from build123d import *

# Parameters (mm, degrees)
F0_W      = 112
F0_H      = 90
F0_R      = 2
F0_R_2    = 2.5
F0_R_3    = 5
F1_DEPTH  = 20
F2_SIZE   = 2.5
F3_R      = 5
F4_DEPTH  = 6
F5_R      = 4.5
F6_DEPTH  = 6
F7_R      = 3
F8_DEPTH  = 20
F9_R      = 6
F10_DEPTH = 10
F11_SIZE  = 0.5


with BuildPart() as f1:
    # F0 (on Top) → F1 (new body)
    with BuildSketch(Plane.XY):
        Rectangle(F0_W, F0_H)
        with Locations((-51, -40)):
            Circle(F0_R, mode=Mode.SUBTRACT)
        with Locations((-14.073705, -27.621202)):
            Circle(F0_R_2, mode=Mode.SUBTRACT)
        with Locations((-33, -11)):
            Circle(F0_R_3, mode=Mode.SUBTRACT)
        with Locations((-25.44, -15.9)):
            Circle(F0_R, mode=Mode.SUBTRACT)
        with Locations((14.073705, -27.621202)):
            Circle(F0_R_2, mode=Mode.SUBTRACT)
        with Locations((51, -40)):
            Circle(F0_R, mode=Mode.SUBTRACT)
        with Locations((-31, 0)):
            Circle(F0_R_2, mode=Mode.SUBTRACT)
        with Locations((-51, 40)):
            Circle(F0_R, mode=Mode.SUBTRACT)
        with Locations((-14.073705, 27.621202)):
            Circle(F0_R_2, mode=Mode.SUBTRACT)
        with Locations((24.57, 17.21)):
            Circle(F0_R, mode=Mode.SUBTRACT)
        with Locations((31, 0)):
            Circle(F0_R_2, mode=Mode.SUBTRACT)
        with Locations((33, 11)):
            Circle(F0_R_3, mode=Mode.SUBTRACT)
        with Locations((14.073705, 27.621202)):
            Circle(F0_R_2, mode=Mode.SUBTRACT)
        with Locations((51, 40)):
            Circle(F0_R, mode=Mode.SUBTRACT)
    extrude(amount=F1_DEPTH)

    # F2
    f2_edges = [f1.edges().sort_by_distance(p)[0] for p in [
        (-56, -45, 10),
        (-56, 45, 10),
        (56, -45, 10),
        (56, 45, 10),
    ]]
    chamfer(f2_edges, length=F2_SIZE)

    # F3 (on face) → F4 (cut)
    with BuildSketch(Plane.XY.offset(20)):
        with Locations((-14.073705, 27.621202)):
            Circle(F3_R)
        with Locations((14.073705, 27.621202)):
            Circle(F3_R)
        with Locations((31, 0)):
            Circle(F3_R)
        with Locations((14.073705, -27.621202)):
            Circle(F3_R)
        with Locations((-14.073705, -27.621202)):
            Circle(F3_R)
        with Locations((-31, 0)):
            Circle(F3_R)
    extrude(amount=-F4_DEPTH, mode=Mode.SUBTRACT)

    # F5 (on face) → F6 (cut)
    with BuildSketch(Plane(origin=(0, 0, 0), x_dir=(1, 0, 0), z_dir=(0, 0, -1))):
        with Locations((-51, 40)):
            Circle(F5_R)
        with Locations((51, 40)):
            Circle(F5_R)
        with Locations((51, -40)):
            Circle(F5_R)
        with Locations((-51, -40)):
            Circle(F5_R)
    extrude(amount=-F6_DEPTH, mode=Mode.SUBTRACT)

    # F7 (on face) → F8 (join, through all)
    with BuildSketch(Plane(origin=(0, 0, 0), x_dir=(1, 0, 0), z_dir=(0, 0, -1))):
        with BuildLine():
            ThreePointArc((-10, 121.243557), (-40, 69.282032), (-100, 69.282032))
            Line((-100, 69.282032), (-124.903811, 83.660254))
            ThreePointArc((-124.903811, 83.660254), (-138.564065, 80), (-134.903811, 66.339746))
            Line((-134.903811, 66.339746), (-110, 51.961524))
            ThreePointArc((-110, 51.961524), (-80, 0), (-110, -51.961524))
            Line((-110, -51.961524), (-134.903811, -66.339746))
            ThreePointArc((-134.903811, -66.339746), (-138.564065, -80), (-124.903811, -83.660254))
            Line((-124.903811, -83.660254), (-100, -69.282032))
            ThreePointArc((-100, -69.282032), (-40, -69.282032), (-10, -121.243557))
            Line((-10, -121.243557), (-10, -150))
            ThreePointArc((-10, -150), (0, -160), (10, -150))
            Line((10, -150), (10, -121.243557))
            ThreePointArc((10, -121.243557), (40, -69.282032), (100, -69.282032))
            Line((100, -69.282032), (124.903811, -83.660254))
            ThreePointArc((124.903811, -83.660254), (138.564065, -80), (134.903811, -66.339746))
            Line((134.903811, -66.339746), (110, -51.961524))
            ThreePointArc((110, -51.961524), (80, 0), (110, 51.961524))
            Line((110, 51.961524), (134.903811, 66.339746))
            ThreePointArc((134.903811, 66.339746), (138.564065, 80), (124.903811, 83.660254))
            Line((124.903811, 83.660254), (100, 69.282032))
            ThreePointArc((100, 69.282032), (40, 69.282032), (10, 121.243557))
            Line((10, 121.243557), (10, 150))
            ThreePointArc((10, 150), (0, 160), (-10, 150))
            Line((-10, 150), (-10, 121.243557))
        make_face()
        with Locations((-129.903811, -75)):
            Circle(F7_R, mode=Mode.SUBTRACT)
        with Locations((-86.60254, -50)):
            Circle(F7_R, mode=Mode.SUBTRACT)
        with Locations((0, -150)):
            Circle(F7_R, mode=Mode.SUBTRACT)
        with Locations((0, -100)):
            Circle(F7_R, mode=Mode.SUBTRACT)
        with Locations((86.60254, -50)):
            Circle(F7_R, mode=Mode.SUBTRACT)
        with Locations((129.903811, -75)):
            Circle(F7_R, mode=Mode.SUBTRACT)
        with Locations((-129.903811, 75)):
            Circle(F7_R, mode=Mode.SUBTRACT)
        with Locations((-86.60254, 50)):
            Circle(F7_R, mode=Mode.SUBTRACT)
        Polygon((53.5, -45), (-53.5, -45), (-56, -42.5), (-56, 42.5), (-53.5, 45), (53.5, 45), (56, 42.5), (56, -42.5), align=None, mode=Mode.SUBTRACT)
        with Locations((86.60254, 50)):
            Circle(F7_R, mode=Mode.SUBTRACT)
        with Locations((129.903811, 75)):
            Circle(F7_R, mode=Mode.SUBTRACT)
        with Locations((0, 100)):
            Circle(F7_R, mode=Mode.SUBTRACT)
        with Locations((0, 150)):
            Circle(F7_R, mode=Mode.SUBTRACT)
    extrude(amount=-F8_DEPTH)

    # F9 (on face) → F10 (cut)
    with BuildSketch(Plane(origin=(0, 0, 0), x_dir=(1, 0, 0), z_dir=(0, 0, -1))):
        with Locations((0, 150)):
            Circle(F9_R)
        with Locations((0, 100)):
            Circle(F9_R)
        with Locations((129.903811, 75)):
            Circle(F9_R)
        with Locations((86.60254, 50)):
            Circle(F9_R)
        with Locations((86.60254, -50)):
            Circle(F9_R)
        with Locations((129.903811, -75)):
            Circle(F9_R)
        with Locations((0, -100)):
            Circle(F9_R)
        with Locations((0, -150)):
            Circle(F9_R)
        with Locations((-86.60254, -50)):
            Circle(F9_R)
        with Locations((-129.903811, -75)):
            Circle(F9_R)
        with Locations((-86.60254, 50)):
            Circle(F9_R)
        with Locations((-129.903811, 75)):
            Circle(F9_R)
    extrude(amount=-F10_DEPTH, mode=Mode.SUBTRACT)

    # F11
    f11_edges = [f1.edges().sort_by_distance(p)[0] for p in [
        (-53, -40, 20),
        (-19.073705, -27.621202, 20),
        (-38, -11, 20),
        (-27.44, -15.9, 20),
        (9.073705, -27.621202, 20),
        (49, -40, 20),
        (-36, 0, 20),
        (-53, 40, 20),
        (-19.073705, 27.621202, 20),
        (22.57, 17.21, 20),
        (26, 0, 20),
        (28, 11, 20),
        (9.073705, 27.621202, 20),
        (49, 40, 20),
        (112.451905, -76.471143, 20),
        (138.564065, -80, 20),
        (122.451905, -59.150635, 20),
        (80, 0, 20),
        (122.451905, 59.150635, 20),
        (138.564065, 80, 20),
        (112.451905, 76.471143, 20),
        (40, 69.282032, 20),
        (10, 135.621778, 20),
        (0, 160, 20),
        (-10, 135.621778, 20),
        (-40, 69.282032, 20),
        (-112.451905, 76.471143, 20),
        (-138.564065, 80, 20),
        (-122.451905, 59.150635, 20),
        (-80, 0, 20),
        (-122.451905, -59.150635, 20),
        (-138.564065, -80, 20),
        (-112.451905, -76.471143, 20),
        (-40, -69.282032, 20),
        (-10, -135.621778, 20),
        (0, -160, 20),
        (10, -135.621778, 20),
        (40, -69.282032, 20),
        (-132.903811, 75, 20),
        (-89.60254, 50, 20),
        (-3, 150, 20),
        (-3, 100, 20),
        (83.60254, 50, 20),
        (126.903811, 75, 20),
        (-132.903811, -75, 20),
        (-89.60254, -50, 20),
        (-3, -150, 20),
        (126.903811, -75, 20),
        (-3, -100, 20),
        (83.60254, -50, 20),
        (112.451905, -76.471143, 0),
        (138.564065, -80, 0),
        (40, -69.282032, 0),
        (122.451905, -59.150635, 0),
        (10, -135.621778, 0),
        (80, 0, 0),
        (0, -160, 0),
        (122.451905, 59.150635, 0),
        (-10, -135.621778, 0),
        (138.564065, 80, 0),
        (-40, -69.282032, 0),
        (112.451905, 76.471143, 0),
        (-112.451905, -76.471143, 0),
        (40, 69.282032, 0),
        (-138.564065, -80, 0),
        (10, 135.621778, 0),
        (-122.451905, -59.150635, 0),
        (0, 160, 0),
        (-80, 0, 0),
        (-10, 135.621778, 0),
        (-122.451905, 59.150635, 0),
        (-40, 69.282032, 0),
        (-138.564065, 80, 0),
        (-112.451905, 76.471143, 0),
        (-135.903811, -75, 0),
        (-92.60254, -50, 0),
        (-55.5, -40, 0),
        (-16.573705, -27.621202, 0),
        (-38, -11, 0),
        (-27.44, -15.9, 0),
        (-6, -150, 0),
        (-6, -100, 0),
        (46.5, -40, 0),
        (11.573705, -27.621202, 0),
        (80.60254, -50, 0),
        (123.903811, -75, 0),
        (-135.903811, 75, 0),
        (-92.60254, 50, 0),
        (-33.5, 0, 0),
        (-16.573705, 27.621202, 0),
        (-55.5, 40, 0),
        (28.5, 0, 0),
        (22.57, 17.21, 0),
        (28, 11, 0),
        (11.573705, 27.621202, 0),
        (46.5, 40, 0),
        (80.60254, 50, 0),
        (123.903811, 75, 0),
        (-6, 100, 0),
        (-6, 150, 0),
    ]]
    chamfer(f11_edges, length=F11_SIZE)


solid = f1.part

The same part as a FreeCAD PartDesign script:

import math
import FreeCAD as App
import Part
import Sketcher
Q = App.Units.Quantity


def edges_at(feature, points):
    """Names of the edges that pass closest to the given points."""
    edges = feature.Shape.Edges
    near = lambda p: min(range(len(edges)), key=lambda i: edges[i].distToShape(Part.Vertex(*p))[0])
    return sorted({f"Edge{near(p) + 1}" for p in points})

doc = App.newDocument("Part")
body = doc.addObject("PartDesign::Body", "Body")

# Sketch on XY plane
sketch1 = body.newObject("Sketcher::SketchObject", "Sketch")
sketch1.AttachmentSupport = (doc.getObject("XY_Plane"), [""])
sketch1.MapMode = "FlatFace"
sketch1.addGeometry([
    Part.LineSegment(App.Vector(-56, 45, 0), App.Vector(-56, -45, 0)),  # 0
    Part.LineSegment(App.Vector(-56, -45, 0), App.Vector(56, -45, 0)),  # 1
    Part.LineSegment(App.Vector(56, -45, 0), App.Vector(56, 45, 0)),  # 2
    Part.LineSegment(App.Vector(56, 45, 0), App.Vector(-56, 45, 0)),  # 3
    Part.Circle(App.Vector(-51, -40, 0), App.Vector(0, 0, 1), 2),  # 4
    Part.Circle(App.Vector(-14.1, -27.6, 0), App.Vector(0, 0, 1), 2.5),  # 5
    Part.Circle(App.Vector(-33, -11, 0), App.Vector(0, 0, 1), 5),  # 6
    Part.Circle(App.Vector(-25.4, -15.9, 0), App.Vector(0, 0, 1), 2),  # 7
    Part.Circle(App.Vector(14.1, -27.6, 0), App.Vector(0, 0, 1), 2.5),  # 8
    Part.Circle(App.Vector(51, -40, 0), App.Vector(0, 0, 1), 2),  # 9
    Part.Circle(App.Vector(-31, 0, 0), App.Vector(0, 0, 1), 2.5),  # 10
    Part.Circle(App.Vector(-51, 40, 0), App.Vector(0, 0, 1), 2),  # 11
    Part.Circle(App.Vector(-14.1, 27.6, 0), App.Vector(0, 0, 1), 2.5),  # 12
    Part.Circle(App.Vector(24.6, 17.2, 0), App.Vector(0, 0, 1), 2),  # 13
    Part.Circle(App.Vector(31, 0, 0), App.Vector(0, 0, 1), 2.5),  # 14
    Part.Circle(App.Vector(33, 11, 0), App.Vector(0, 0, 1), 5),  # 15
    Part.Circle(App.Vector(14.1, 27.6, 0), App.Vector(0, 0, 1), 2.5),  # 16
    Part.Circle(App.Vector(51, 40, 0), App.Vector(0, 0, 1), 2),  # 17
], False)
sketch1.addConstraint([
    Sketcher.Constraint("Coincident", 0, 2, 1, 1),
    Sketcher.Constraint("Coincident", 1, 2, 2, 1),
    Sketcher.Constraint("Coincident", 2, 2, 3, 1),
    Sketcher.Constraint("Coincident", 3, 2, 0, 1),
    Sketcher.Constraint("Vertical", 0),
    Sketcher.Constraint("Horizontal", 1),
    Sketcher.Constraint("Vertical", 2),
    Sketcher.Constraint("Horizontal", 3),
    Sketcher.Constraint("Equal", 4, 7),
    Sketcher.Constraint("Equal", 5, 8),
    Sketcher.Constraint("Equal", 7, 9),
    Sketcher.Constraint("Equal", 8, 10),
    Sketcher.Constraint("Equal", 9, 11),
    Sketcher.Constraint("Equal", 10, 12),
    Sketcher.Constraint("Equal", 11, 13),
    Sketcher.Constraint("Equal", 12, 14),
    Sketcher.Constraint("Equal", 6, 15),
    Sketcher.Constraint("Equal", 14, 16),
    Sketcher.Constraint("Equal", 13, 17),
    Sketcher.Constraint("Symmetric", 9, 3, 11, 3, -1, 1),
    Sketcher.Constraint("Symmetric", 8, 3, 12, 3, -1, 1),
    Sketcher.Constraint("Symmetric", 10, 3, 14, 3, -1, 1),
    Sketcher.Constraint("Symmetric", 6, 3, 15, 3, -1, 1),
    Sketcher.Constraint("Symmetric", 5, 3, 16, 3, -1, 1),
    Sketcher.Constraint("Symmetric", 4, 3, 17, 3, -1, 1),
    Sketcher.Constraint("Symmetric", 0, 2, 2, 2, -1, 1),
    Sketcher.Constraint("Symmetric", 5, 3, 8, 3, -2),
    Sketcher.Constraint("Symmetric", 4, 3, 9, 3, -2),
    Sketcher.Constraint("PointOnObject", 10, 3, -1),
    Sketcher.Constraint("Diameter", 4, Q("4 mm")),
    Sketcher.Constraint("Diameter", 5, Q("5 mm")),
    Sketcher.Constraint("Diameter", 6, Q("10 mm")),
    Sketcher.Constraint("DistanceX", 1, 1, 1, 2, Q("112 mm")),
    Sketcher.Constraint("DistanceY", 0, 2, 0, 1, Q("90 mm")),
    Sketcher.Constraint("DistanceX", 4, 3, -1, 1, Q("51 mm")),
    Sketcher.Constraint("DistanceY", 4, 3, -1, 1, Q("40 mm")),
    Sketcher.Constraint("DistanceX", 6, 3, -1, 1, Q("33 mm")),
    Sketcher.Constraint("DistanceY", 6, 3, -1, 1, Q("11 mm")),
    Sketcher.Constraint("DistanceX", 10, 3, -1, 1, Q("31 mm")),
    Sketcher.Constraint("DistanceY", 7, 3, -1, 1, Q("15.9 mm")),
    Sketcher.Constraint("DistanceX", 7, 3, -1, 1, Q("25.44 mm")),
    Sketcher.Constraint("DistanceX", -1, 1, 13, 3, Q("24.57 mm")),
    Sketcher.Constraint("DistanceY", -1, 1, 13, 3, Q("17.21 mm")),
    Sketcher.Constraint("DistanceY", 5, 3, -1, 1, Q("27.621202 mm")),
    Sketcher.Constraint("DistanceX", 5, 3, 8, 3, Q("28.14741 mm")),
])
pad1 = body.newObject("PartDesign::Pad", "Pad")
pad1.Profile = sketch1
pad1.Length = 20
doc.recompute()

chamfer = body.newObject("PartDesign::Chamfer", "Chamfer")
chamfer.Base = (pad1, edges_at(pad1, [
    (-56, -45, 10),
    (-56, 45, 10),
    (56, -45, 10),
    (56, 45, 10),
]))
chamfer.Size = 2.5

# Sketch on XY plane
sketch2 = body.newObject("Sketcher::SketchObject", "Sketch001")
sketch2.AttachmentSupport = (doc.getObject("XY_Plane"), [""])
sketch2.MapMode = "FlatFace"
sketch2.AttachmentOffset = App.Placement(App.Vector(0, 0, 20), App.Rotation())
sketch2.addGeometry([
    Part.Circle(App.Vector(-14, 28, 0), App.Vector(0, 0, 1), 5),  # 0
    Part.Circle(App.Vector(14, 28, 0), App.Vector(0, 0, 1), 5),  # 1
    Part.Circle(App.Vector(31, 0, 0), App.Vector(0, 0, 1), 5),  # 2
    Part.Circle(App.Vector(14, -28, 0), App.Vector(0, 0, 1), 5),  # 3
    Part.Circle(App.Vector(-14, -28, 0), App.Vector(0, 0, 1), 5),  # 4
    Part.Circle(App.Vector(-31, 0, 0), App.Vector(0, 0, 1), 5),  # 5
], False)
sketch2.addConstraint([
    Sketcher.Constraint("Equal", 0, 1),
    Sketcher.Constraint("Equal", 1, 2),
    Sketcher.Constraint("Equal", 2, 3),
    Sketcher.Constraint("Equal", 3, 4),
    Sketcher.Constraint("Equal", 4, 5),
    Sketcher.Constraint("Symmetric", 0, 3, 3, 3, -1, 1),
    Sketcher.Constraint("Symmetric", 1, 3, 4, 3, -1, 1),
    Sketcher.Constraint("Symmetric", 2, 3, 5, 3, -1, 1),
    Sketcher.Constraint("Symmetric", 0, 3, 1, 3, -2),
    Sketcher.Constraint("PointOnObject", 2, 3, -1),
    Sketcher.Constraint("Diameter", 0, Q("10 mm")),
    Sketcher.Constraint("DistanceX", -1, 1, 2, 3, Q("31 mm")),
    Sketcher.Constraint("DistanceY", -1, 1, 0, 3, Q("27.621202 mm")),
    Sketcher.Constraint("DistanceX", 0, 3, 1, 3, Q("28.14741 mm")),
])
pocket1 = body.newObject("PartDesign::Pocket", "Pocket")
pocket1.Profile = sketch2
pocket1.Length = 6

# Sketch on XY plane
sketch3 = body.newObject("Sketcher::SketchObject", "Sketch002")
sketch3.AttachmentSupport = (doc.getObject("XY_Plane"), [""])
sketch3.MapMode = "FlatFace"
sketch3.addGeometry([
    Part.Circle(App.Vector(-51, -40, 0), App.Vector(0, 0, 1), 4.5),
    Part.Circle(App.Vector(51, -40, 0), App.Vector(0, 0, 1), 4.5),
    Part.Circle(App.Vector(51, 40, 0), App.Vector(0, 0, 1), 4.5),
    Part.Circle(App.Vector(-51, 40, 0), App.Vector(0, 0, 1), 4.5),
], False)
sketch3.addConstraint([
    Sketcher.Constraint("Equal", 0, 1),
    Sketcher.Constraint("Equal", 1, 2),
    Sketcher.Constraint("Equal", 2, 3),
    Sketcher.Constraint("Symmetric", 0, 3, 2, 3, -1, 1),
    Sketcher.Constraint("Symmetric", 1, 3, 3, 3, -1, 1),
    Sketcher.Constraint("Symmetric", 0, 3, 1, 3, -2),
    Sketcher.Constraint("Diameter", 0, Q("9 mm")),
    Sketcher.Constraint("DistanceX", 0, 3, -1, 1, Q("51 mm")),
    Sketcher.Constraint("DistanceY", 0, 3, -1, 1, Q("40 mm")),
])
pocket2 = body.newObject("PartDesign::Pocket", "Pocket001")
pocket2.Profile = sketch3
pocket2.Length = 6
pocket2.Reversed = True

# Sketch on XY plane
sketch4 = body.newObject("Sketcher::SketchObject", "Sketch003")
sketch4.AttachmentSupport = (doc.getObject("XY_Plane"), [""])
sketch4.MapMode = "FlatFace"
sketch4.addGeometry([
    Part.ArcOfCircle(Part.Circle(App.Vector(-70, -121.2, 0), App.Vector(0, 0, 1), 60), math.radians(0), math.radians(120)),  # 0
    Part.LineSegment(App.Vector(-100, -69.3, 0), App.Vector(-124.9, -83.7, 0)),  # 1
    Part.ArcOfCircle(Part.Circle(App.Vector(-129.9, -75, 0), App.Vector(0, 0, 1), 10), math.radians(120), math.radians(300)),  # 2
    Part.LineSegment(App.Vector(-134.9, -66.3, 0), App.Vector(-110, -52, 0)),  # 3
    Part.ArcOfCircle(Part.Circle(App.Vector(-140, 0, 0), App.Vector(0, 0, 1), 60), math.radians(-60), math.radians(60)),  # 4
    Part.LineSegment(App.Vector(-110, 52, 0), App.Vector(-134.9, 66.3, 0)),  # 5
    Part.ArcOfCircle(Part.Circle(App.Vector(-129.9, 75, 0), App.Vector(0, 0, 1), 10), math.radians(60), math.radians(240)),  # 6
    Part.LineSegment(App.Vector(-124.9, 83.7, 0), App.Vector(-100, 69.3, 0)),  # 7
    Part.ArcOfCircle(Part.Circle(App.Vector(-70, 121.2, 0), App.Vector(0, 0, 1), 60), math.radians(-120), math.radians(0)),  # 8
    Part.LineSegment(App.Vector(-10, 121.2, 0), App.Vector(-10, 150, 0)),  # 9
    Part.ArcOfCircle(Part.Circle(App.Vector(0, 150, 0), App.Vector(0, 0, 1), 10), math.radians(0), math.radians(180)),  # 10
    Part.LineSegment(App.Vector(10, 150, 0), App.Vector(10, 121.2, 0)),  # 11
    Part.ArcOfCircle(Part.Circle(App.Vector(70, 121.2, 0), App.Vector(0, 0, 1), 60), math.radians(180), math.radians(300)),  # 12
    Part.LineSegment(App.Vector(100, 69.3, 0), App.Vector(124.9, 83.7, 0)),  # 13
    Part.ArcOfCircle(Part.Circle(App.Vector(129.9, 75, 0), App.Vector(0, 0, 1), 10), math.radians(-60), math.radians(120)),  # 14
    Part.LineSegment(App.Vector(134.9, 66.3, 0), App.Vector(110, 52, 0)),  # 15
    Part.ArcOfCircle(Part.Circle(App.Vector(140, 0, 0), App.Vector(0, 0, 1), 60), math.radians(120), math.radians(240)),  # 16
    Part.LineSegment(App.Vector(110, -52, 0), App.Vector(134.9, -66.3, 0)),  # 17
    Part.ArcOfCircle(Part.Circle(App.Vector(129.9, -75, 0), App.Vector(0, 0, 1), 10), math.radians(-120), math.radians(60)),  # 18
    Part.LineSegment(App.Vector(124.9, -83.7, 0), App.Vector(100, -69.3, 0)),  # 19
    Part.ArcOfCircle(Part.Circle(App.Vector(70, -121.2, 0), App.Vector(0, 0, 1), 60), math.radians(60), math.radians(180)),  # 20
    Part.LineSegment(App.Vector(10, -121.2, 0), App.Vector(10, -150, 0)),  # 21
    Part.ArcOfCircle(Part.Circle(App.Vector(0, -150, 0), App.Vector(0, 0, 1), 10), math.radians(180), math.radians(360)),  # 22
    Part.LineSegment(App.Vector(-10, -150, 0), App.Vector(-10, -121.2, 0)),  # 23
    Part.Circle(App.Vector(-129.9, 75, 0), App.Vector(0, 0, 1), 3),  # 24
    Part.Circle(App.Vector(-86.6, 50, 0), App.Vector(0, 0, 1), 3),  # 25
    Part.Circle(App.Vector(0, 150, 0), App.Vector(0, 0, 1), 3),  # 26
    Part.Circle(App.Vector(0, 100, 0), App.Vector(0, 0, 1), 3),  # 27
    Part.Circle(App.Vector(86.6, 50, 0), App.Vector(0, 0, 1), 3),  # 28
    Part.Circle(App.Vector(129.9, 75, 0), App.Vector(0, 0, 1), 3),  # 29
    Part.Circle(App.Vector(-129.9, -75, 0), App.Vector(0, 0, 1), 3),  # 30
    Part.Circle(App.Vector(-86.6, -50, 0), App.Vector(0, 0, 1), 3),  # 31
    Part.LineSegment(App.Vector(56, 42.5, 0), App.Vector(53.5, 45, 0)),  # 32
    Part.LineSegment(App.Vector(53.5, 45, 0), App.Vector(-53.5, 45, 0)),  # 33
    Part.LineSegment(App.Vector(-53.5, 45, 0), App.Vector(-56, 42.5, 0)),  # 34
    Part.LineSegment(App.Vector(-56, 42.5, 0), App.Vector(-56, -42.5, 0)),  # 35
    Part.LineSegment(App.Vector(-56, -42.5, 0), App.Vector(-53.5, -45, 0)),  # 36
    Part.LineSegment(App.Vector(-53.5, -45, 0), App.Vector(53.5, -45, 0)),  # 37
    Part.LineSegment(App.Vector(53.5, -45, 0), App.Vector(56, -42.5, 0)),  # 38
    Part.LineSegment(App.Vector(56, -42.5, 0), App.Vector(56, 42.5, 0)),  # 39
    Part.Circle(App.Vector(86.6, -50, 0), App.Vector(0, 0, 1), 3),  # 40
    Part.Circle(App.Vector(129.9, -75, 0), App.Vector(0, 0, 1), 3),  # 41
    Part.Circle(App.Vector(0, -100, 0), App.Vector(0, 0, 1), 3),  # 42
    Part.Circle(App.Vector(0, -150, 0), App.Vector(0, 0, 1), 3),  # 43
], False)
sketch4.addConstraint([
    Sketcher.Constraint("Tangent", 0, 2, 1, 1),
    Sketcher.Constraint("Tangent", 1, 2, 2, 2),
    Sketcher.Constraint("Tangent", 2, 1, 3, 1),
    Sketcher.Constraint("Tangent", 3, 2, 4, 1),
    Sketcher.Constraint("Tangent", 4, 2, 5, 1),
    Sketcher.Constraint("Tangent", 5, 2, 6, 2),
    Sketcher.Constraint("Tangent", 6, 1, 7, 1),
    Sketcher.Constraint("Tangent", 7, 2, 8, 1),
    Sketcher.Constraint("Tangent", 8, 2, 9, 1),
    Sketcher.Constraint("Tangent", 9, 2, 10, 2),
    Sketcher.Constraint("Tangent", 10, 1, 11, 1),
    Sketcher.Constraint("Tangent", 11, 2, 12, 1),
    Sketcher.Constraint("Tangent", 12, 2, 13, 1),
    Sketcher.Constraint("Tangent", 13, 2, 14, 2),
    Sketcher.Constraint("Tangent", 14, 1, 15, 1),
    Sketcher.Constraint("Tangent", 15, 2, 16, 1),
    Sketcher.Constraint("Tangent", 16, 2, 17, 1),
    Sketcher.Constraint("Tangent", 17, 2, 18, 2),
    Sketcher.Constraint("Tangent", 18, 1, 19, 1),
    Sketcher.Constraint("Tangent", 19, 2, 20, 1),
    Sketcher.Constraint("Tangent", 20, 2, 21, 1),
    Sketcher.Constraint("Tangent", 21, 2, 22, 2),
    Sketcher.Constraint("Tangent", 22, 1, 23, 1),
    Sketcher.Constraint("Tangent", 23, 2, 0, 1),
    Sketcher.Constraint("Coincident", 32, 2, 33, 1),
    Sketcher.Constraint("Coincident", 33, 2, 34, 1),
    Sketcher.Constraint("Coincident", 34, 2, 35, 1),
    Sketcher.Constraint("Coincident", 35, 2, 36, 1),
    Sketcher.Constraint("Coincident", 36, 2, 37, 1),
    Sketcher.Constraint("Coincident", 37, 2, 38, 1),
    Sketcher.Constraint("Coincident", 38, 2, 39, 1),
    Sketcher.Constraint("Coincident", 39, 2, 32, 1),
    Sketcher.Constraint("Vertical", 9),
    Sketcher.Constraint("Vertical", 11),
    Sketcher.Constraint("Vertical", 21),
    Sketcher.Constraint("Vertical", 23),
    Sketcher.Constraint("Horizontal", 33),
    Sketcher.Constraint("Vertical", 35),
    Sketcher.Constraint("Horizontal", 37),
    Sketcher.Constraint("Vertical", 39),
    Sketcher.Constraint("Coincident", 24, 3, 6, 3),
    Sketcher.Constraint("Coincident", 26, 3, 10, 3),
    Sketcher.Constraint("Coincident", 29, 3, 14, 3),
    Sketcher.Constraint("Coincident", 30, 3, 2, 3),
    Sketcher.Constraint("Coincident", 41, 3, 18, 3),
    Sketcher.Constraint("Coincident", 43, 3, 22, 3),
    Sketcher.Constraint("Equal", 0, 4),
    Sketcher.Constraint("Equal", 2, 6),
    Sketcher.Constraint("Equal", 4, 8),
    Sketcher.Constraint("Equal", 6, 10),
    Sketcher.Constraint("Equal", 8, 12),
    Sketcher.Constraint("Equal", 10, 14),
    Sketcher.Constraint("Equal", 12, 16),
    Sketcher.Constraint("Equal", 14, 18),
    Sketcher.Constraint("Equal", 16, 20),
    Sketcher.Constraint("Equal", 18, 22),
    Sketcher.Constraint("Equal", 24, 25),
    Sketcher.Constraint("Equal", 25, 26),
    Sketcher.Constraint("Equal", 26, 27),
    Sketcher.Constraint("Equal", 27, 28),
    Sketcher.Constraint("Equal", 28, 29),
    Sketcher.Constraint("Equal", 29, 30),
    Sketcher.Constraint("Equal", 30, 31),
    Sketcher.Constraint("Equal", 31, 40),
    Sketcher.Constraint("Equal", 40, 41),
    Sketcher.Constraint("Equal", 41, 42),
    Sketcher.Constraint("Equal", 42, 43),
    Sketcher.Constraint("Symmetric", 0, 3, 12, 3, -1, 1),
    Sketcher.Constraint("Symmetric", 2, 3, 14, 3, -1, 1),
    Sketcher.Constraint("Symmetric", 4, 3, 16, 3, -1, 1),
    Sketcher.Constraint("Symmetric", 6, 3, 18, 3, -1, 1),
    Sketcher.Constraint("Symmetric", 28, 3, 31, 3, -1, 1),
    Sketcher.Constraint("Symmetric", 25, 3, 40, 3, -1, 1),
    Sketcher.Constraint("Symmetric", 27, 3, 42, 3, -1, 1),
    Sketcher.Constraint("Symmetric", 32, 2, 36, 2, -1, 1),
    Sketcher.Constraint("Symmetric", 34, 2, 38, 2, -1, 1),
    Sketcher.Constraint("Symmetric", 8, 3, 12, 3, -2),
    Sketcher.Constraint("Symmetric", 6, 3, 14, 3, -2),
    Sketcher.Constraint("Symmetric", 25, 3, 28, 3, -2),
    Sketcher.Constraint("PointOnObject", 4, 3, -1),
    Sketcher.Constraint("PointOnObject", 27, 3, -2),
    Sketcher.Constraint("Parallel", 1, 3),
    Sketcher.Constraint("Parallel", 17, 19),
    Sketcher.Constraint("Perpendicular", 32, 34),
    Sketcher.Constraint("Perpendicular", 34, 36),
    Sketcher.Constraint("Perpendicular", 36, 38),
    Sketcher.Constraint("Horizontal", 35, 2, 38, 2),
    Sketcher.Constraint("Vertical", 33, 2, 36, 2),
    Sketcher.Constraint("Equal", 11, 21),
    Sketcher.Constraint("Equal", 1, 3),
    Sketcher.Constraint("Diameter", 24, Q("6 mm")),
    Sketcher.Constraint("Radius", 0, Q("60 mm")),
    Sketcher.Constraint("Radius", 2, Q("10 mm")),
    Sketcher.Constraint("DistanceX", 33, 2, 33, 1, Q("107 mm")),
    Sketcher.Constraint("DistanceY", 35, 2, 35, 1, Q("85 mm")),
    Sketcher.Constraint("Angle", 1, Q("-150 deg")),
    Sketcher.Constraint("DistanceY", 2, 3, -1, 1, Q("75 mm")),
    Sketcher.Constraint("DistanceY", -1, 1, 10, 3, Q("150 mm")),
    Sketcher.Constraint("DistanceY", -1, 1, 25, 3, Q("50 mm")),
    Sketcher.Constraint("DistanceY", -1, 1, 27, 3, Q("100 mm")),
    Sketcher.Constraint("DistanceY", -1, 1, 32, 2, Q("45 mm")),
    Sketcher.Constraint("DistanceX", 25, 3, -1, 1, Q("86.60254 mm")),
])
pad2 = body.newObject("PartDesign::Pad", "Pad001")
pad2.Profile = sketch4
pad2.Type = "UpToLast"

# Sketch on XY plane
sketch5 = body.newObject("Sketcher::SketchObject", "Sketch004")
sketch5.AttachmentSupport = (doc.getObject("XY_Plane"), [""])
sketch5.MapMode = "FlatFace"
sketch5.addGeometry([
    Part.Circle(App.Vector(0, -150, 0), App.Vector(0, 0, 1), 6),  # 0
    Part.Circle(App.Vector(0, -100, 0), App.Vector(0, 0, 1), 6),  # 1
    Part.Circle(App.Vector(130, -75, 0), App.Vector(0, 0, 1), 6),  # 2
    Part.Circle(App.Vector(87, -50, 0), App.Vector(0, 0, 1), 6),  # 3
    Part.Circle(App.Vector(87, 50, 0), App.Vector(0, 0, 1), 6),  # 4
    Part.Circle(App.Vector(130, 75, 0), App.Vector(0, 0, 1), 6),  # 5
    Part.Circle(App.Vector(0, 100, 0), App.Vector(0, 0, 1), 6),  # 6
    Part.Circle(App.Vector(0, 150, 0), App.Vector(0, 0, 1), 6),  # 7
    Part.Circle(App.Vector(-87, 50, 0), App.Vector(0, 0, 1), 6),  # 8
    Part.Circle(App.Vector(-130, 75, 0), App.Vector(0, 0, 1), 6),  # 9
    Part.Circle(App.Vector(-87, -50, 0), App.Vector(0, 0, 1), 6),  # 10
    Part.Circle(App.Vector(-130, -75, 0), App.Vector(0, 0, 1), 6),  # 11
], False)
sketch5.addConstraint([
    Sketcher.Constraint("Equal", 0, 1),
    Sketcher.Constraint("Equal", 1, 2),
    Sketcher.Constraint("Equal", 2, 3),
    Sketcher.Constraint("Equal", 3, 4),
    Sketcher.Constraint("Equal", 4, 5),
    Sketcher.Constraint("Equal", 5, 6),
    Sketcher.Constraint("Equal", 6, 7),
    Sketcher.Constraint("Equal", 7, 8),
    Sketcher.Constraint("Equal", 8, 9),
    Sketcher.Constraint("Equal", 9, 10),
    Sketcher.Constraint("Equal", 10, 11),
    Sketcher.Constraint("Symmetric", 1, 3, 6, 3, -1, 1),
    Sketcher.Constraint("Symmetric", 0, 3, 7, 3, -1, 1),
    Sketcher.Constraint("Symmetric", 3, 3, 8, 3, -1, 1),
    Sketcher.Constraint("Symmetric", 2, 3, 9, 3, -1, 1),
    Sketcher.Constraint("Symmetric", 4, 3, 10, 3, -1, 1),
    Sketcher.Constraint("Symmetric", 5, 3, 11, 3, -1, 1),
    Sketcher.Constraint("Symmetric", 4, 3, 8, 3, -2),
    Sketcher.Constraint("Symmetric", 5, 3, 9, 3, -2),
    Sketcher.Constraint("PointOnObject", 0, 3, -2),
    Sketcher.Constraint("PointOnObject", 1, 3, -2),
    Sketcher.Constraint("Diameter", 0, Q("12 mm")),
    Sketcher.Constraint("DistanceY", 0, 3, -1, 1, Q("150 mm")),
    Sketcher.Constraint("DistanceY", 1, 3, -1, 1, Q("100 mm")),
    Sketcher.Constraint("DistanceY", 2, 3, -1, 1, Q("75 mm")),
    Sketcher.Constraint("DistanceY", 3, 3, -1, 1, Q("50 mm")),
    Sketcher.Constraint("DistanceX", -1, 1, 2, 3, Q("129.903811 mm")),
    Sketcher.Constraint("DistanceX", -1, 1, 3, 3, Q("86.60254 mm")),
])
pocket3 = body.newObject("PartDesign::Pocket", "Pocket002")
pocket3.Profile = sketch5
pocket3.Length = 10
pocket3.Reversed = True
doc.recompute()

chamfer2 = body.newObject("PartDesign::Chamfer", "Chamfer001")
chamfer2.Base = (pocket3, edges_at(pocket3, [
    (-53, -40, 20),
    (-19.074, -27.621, 20),
    (-38, -11, 20),
    (-27.44, -15.9, 20),
    (9.074, -27.621, 20),
    (49, -40, 20),
    (-36, 0, 20),
    (-53, 40, 20),
    (-19.074, 27.621, 20),
    (22.57, 17.21, 20),
    (26, 0, 20),
    (28, 11, 20),
    (9.074, 27.621, 20),
    (49, 40, 20),
    (112.452, -76.471, 20),
    (138.564, -80, 20),
    (122.452, -59.151, 20),
    (80, 0, 20),
    (122.452, 59.151, 20),
    (138.564, 80, 20),
    (112.452, 76.471, 20),
    (40, 69.282, 20),
    (10, 135.622, 20),
    (0, 160, 20),
    (-10, 135.622, 20),
    (-40, 69.282, 20),
    (-112.452, 76.471, 20),
    (-138.564, 80, 20),
    (-122.452, 59.151, 20),
    (-80, 0, 20),
    (-122.452, -59.151, 20),
    (-138.564, -80, 20),
    (-112.452, -76.471, 20),
    (-40, -69.282, 20),
    (-10, -135.622, 20),
    (0, -160, 20),
    (10, -135.622, 20),
    (40, -69.282, 20),
    (-132.904, 75, 20),
    (-89.603, 50, 20),
    (-3, 150, 20),
    (-3, 100, 20),
    (83.603, 50, 20),
    (126.904, 75, 20),
    (-132.904, -75, 20),
    (-89.603, -50, 20),
    (-3, -150, 20),
    (126.904, -75, 20),
    (-3, -100, 20),
    (83.603, -50, 20),
    (112.452, -76.471, 0),
    (138.564, -80, 0),
    (40, -69.282, 0),
    (122.452, -59.151, 0),
    (10, -135.622, 0),
    (80, 0, 0),
    (0, -160, 0),
    (122.452, 59.151, 0),
    (-10, -135.622, 0),
    (138.564, 80, 0),
    (-40, -69.282, 0),
    (112.452, 76.471, 0),
    (-112.452, -76.471, 0),
    (40, 69.282, 0),
    (-138.564, -80, 0),
    (10, 135.622, 0),
    (-122.452, -59.151, 0),
    (0, 160, 0),
    (-80, 0, 0),
    (-10, 135.622, 0),
    (-122.452, 59.151, 0),
    (-40, 69.282, 0),
    (-138.564, 80, 0),
    (-112.452, 76.471, 0),
    (-135.904, -75, 0),
    (-92.603, -50, 0),
    (-55.5, -40, 0),
    (-16.574, -27.621, 0),
    (-38, -11, 0),
    (-27.44, -15.9, 0),
    (-6, -150, 0),
    (-6, -100, 0),
    (46.5, -40, 0),
    (11.574, -27.621, 0),
    (80.603, -50, 0),
    (123.904, -75, 0),
    (-135.904, 75, 0),
    (-92.603, 50, 0),
    (-33.5, 0, 0),
    (-16.574, 27.621, 0),
    (-55.5, 40, 0),
    (28.5, 0, 0),
    (22.57, 17.21, 0),
    (28, 11, 0),
    (11.574, 27.621, 0),
    (46.5, 40, 0),
    (80.603, 50, 0),
    (123.904, 75, 0),
    (-6, 100, 0),
    (-6, 150, 0),
]))
chamfer2.Size = 0.5

doc.recompute()
